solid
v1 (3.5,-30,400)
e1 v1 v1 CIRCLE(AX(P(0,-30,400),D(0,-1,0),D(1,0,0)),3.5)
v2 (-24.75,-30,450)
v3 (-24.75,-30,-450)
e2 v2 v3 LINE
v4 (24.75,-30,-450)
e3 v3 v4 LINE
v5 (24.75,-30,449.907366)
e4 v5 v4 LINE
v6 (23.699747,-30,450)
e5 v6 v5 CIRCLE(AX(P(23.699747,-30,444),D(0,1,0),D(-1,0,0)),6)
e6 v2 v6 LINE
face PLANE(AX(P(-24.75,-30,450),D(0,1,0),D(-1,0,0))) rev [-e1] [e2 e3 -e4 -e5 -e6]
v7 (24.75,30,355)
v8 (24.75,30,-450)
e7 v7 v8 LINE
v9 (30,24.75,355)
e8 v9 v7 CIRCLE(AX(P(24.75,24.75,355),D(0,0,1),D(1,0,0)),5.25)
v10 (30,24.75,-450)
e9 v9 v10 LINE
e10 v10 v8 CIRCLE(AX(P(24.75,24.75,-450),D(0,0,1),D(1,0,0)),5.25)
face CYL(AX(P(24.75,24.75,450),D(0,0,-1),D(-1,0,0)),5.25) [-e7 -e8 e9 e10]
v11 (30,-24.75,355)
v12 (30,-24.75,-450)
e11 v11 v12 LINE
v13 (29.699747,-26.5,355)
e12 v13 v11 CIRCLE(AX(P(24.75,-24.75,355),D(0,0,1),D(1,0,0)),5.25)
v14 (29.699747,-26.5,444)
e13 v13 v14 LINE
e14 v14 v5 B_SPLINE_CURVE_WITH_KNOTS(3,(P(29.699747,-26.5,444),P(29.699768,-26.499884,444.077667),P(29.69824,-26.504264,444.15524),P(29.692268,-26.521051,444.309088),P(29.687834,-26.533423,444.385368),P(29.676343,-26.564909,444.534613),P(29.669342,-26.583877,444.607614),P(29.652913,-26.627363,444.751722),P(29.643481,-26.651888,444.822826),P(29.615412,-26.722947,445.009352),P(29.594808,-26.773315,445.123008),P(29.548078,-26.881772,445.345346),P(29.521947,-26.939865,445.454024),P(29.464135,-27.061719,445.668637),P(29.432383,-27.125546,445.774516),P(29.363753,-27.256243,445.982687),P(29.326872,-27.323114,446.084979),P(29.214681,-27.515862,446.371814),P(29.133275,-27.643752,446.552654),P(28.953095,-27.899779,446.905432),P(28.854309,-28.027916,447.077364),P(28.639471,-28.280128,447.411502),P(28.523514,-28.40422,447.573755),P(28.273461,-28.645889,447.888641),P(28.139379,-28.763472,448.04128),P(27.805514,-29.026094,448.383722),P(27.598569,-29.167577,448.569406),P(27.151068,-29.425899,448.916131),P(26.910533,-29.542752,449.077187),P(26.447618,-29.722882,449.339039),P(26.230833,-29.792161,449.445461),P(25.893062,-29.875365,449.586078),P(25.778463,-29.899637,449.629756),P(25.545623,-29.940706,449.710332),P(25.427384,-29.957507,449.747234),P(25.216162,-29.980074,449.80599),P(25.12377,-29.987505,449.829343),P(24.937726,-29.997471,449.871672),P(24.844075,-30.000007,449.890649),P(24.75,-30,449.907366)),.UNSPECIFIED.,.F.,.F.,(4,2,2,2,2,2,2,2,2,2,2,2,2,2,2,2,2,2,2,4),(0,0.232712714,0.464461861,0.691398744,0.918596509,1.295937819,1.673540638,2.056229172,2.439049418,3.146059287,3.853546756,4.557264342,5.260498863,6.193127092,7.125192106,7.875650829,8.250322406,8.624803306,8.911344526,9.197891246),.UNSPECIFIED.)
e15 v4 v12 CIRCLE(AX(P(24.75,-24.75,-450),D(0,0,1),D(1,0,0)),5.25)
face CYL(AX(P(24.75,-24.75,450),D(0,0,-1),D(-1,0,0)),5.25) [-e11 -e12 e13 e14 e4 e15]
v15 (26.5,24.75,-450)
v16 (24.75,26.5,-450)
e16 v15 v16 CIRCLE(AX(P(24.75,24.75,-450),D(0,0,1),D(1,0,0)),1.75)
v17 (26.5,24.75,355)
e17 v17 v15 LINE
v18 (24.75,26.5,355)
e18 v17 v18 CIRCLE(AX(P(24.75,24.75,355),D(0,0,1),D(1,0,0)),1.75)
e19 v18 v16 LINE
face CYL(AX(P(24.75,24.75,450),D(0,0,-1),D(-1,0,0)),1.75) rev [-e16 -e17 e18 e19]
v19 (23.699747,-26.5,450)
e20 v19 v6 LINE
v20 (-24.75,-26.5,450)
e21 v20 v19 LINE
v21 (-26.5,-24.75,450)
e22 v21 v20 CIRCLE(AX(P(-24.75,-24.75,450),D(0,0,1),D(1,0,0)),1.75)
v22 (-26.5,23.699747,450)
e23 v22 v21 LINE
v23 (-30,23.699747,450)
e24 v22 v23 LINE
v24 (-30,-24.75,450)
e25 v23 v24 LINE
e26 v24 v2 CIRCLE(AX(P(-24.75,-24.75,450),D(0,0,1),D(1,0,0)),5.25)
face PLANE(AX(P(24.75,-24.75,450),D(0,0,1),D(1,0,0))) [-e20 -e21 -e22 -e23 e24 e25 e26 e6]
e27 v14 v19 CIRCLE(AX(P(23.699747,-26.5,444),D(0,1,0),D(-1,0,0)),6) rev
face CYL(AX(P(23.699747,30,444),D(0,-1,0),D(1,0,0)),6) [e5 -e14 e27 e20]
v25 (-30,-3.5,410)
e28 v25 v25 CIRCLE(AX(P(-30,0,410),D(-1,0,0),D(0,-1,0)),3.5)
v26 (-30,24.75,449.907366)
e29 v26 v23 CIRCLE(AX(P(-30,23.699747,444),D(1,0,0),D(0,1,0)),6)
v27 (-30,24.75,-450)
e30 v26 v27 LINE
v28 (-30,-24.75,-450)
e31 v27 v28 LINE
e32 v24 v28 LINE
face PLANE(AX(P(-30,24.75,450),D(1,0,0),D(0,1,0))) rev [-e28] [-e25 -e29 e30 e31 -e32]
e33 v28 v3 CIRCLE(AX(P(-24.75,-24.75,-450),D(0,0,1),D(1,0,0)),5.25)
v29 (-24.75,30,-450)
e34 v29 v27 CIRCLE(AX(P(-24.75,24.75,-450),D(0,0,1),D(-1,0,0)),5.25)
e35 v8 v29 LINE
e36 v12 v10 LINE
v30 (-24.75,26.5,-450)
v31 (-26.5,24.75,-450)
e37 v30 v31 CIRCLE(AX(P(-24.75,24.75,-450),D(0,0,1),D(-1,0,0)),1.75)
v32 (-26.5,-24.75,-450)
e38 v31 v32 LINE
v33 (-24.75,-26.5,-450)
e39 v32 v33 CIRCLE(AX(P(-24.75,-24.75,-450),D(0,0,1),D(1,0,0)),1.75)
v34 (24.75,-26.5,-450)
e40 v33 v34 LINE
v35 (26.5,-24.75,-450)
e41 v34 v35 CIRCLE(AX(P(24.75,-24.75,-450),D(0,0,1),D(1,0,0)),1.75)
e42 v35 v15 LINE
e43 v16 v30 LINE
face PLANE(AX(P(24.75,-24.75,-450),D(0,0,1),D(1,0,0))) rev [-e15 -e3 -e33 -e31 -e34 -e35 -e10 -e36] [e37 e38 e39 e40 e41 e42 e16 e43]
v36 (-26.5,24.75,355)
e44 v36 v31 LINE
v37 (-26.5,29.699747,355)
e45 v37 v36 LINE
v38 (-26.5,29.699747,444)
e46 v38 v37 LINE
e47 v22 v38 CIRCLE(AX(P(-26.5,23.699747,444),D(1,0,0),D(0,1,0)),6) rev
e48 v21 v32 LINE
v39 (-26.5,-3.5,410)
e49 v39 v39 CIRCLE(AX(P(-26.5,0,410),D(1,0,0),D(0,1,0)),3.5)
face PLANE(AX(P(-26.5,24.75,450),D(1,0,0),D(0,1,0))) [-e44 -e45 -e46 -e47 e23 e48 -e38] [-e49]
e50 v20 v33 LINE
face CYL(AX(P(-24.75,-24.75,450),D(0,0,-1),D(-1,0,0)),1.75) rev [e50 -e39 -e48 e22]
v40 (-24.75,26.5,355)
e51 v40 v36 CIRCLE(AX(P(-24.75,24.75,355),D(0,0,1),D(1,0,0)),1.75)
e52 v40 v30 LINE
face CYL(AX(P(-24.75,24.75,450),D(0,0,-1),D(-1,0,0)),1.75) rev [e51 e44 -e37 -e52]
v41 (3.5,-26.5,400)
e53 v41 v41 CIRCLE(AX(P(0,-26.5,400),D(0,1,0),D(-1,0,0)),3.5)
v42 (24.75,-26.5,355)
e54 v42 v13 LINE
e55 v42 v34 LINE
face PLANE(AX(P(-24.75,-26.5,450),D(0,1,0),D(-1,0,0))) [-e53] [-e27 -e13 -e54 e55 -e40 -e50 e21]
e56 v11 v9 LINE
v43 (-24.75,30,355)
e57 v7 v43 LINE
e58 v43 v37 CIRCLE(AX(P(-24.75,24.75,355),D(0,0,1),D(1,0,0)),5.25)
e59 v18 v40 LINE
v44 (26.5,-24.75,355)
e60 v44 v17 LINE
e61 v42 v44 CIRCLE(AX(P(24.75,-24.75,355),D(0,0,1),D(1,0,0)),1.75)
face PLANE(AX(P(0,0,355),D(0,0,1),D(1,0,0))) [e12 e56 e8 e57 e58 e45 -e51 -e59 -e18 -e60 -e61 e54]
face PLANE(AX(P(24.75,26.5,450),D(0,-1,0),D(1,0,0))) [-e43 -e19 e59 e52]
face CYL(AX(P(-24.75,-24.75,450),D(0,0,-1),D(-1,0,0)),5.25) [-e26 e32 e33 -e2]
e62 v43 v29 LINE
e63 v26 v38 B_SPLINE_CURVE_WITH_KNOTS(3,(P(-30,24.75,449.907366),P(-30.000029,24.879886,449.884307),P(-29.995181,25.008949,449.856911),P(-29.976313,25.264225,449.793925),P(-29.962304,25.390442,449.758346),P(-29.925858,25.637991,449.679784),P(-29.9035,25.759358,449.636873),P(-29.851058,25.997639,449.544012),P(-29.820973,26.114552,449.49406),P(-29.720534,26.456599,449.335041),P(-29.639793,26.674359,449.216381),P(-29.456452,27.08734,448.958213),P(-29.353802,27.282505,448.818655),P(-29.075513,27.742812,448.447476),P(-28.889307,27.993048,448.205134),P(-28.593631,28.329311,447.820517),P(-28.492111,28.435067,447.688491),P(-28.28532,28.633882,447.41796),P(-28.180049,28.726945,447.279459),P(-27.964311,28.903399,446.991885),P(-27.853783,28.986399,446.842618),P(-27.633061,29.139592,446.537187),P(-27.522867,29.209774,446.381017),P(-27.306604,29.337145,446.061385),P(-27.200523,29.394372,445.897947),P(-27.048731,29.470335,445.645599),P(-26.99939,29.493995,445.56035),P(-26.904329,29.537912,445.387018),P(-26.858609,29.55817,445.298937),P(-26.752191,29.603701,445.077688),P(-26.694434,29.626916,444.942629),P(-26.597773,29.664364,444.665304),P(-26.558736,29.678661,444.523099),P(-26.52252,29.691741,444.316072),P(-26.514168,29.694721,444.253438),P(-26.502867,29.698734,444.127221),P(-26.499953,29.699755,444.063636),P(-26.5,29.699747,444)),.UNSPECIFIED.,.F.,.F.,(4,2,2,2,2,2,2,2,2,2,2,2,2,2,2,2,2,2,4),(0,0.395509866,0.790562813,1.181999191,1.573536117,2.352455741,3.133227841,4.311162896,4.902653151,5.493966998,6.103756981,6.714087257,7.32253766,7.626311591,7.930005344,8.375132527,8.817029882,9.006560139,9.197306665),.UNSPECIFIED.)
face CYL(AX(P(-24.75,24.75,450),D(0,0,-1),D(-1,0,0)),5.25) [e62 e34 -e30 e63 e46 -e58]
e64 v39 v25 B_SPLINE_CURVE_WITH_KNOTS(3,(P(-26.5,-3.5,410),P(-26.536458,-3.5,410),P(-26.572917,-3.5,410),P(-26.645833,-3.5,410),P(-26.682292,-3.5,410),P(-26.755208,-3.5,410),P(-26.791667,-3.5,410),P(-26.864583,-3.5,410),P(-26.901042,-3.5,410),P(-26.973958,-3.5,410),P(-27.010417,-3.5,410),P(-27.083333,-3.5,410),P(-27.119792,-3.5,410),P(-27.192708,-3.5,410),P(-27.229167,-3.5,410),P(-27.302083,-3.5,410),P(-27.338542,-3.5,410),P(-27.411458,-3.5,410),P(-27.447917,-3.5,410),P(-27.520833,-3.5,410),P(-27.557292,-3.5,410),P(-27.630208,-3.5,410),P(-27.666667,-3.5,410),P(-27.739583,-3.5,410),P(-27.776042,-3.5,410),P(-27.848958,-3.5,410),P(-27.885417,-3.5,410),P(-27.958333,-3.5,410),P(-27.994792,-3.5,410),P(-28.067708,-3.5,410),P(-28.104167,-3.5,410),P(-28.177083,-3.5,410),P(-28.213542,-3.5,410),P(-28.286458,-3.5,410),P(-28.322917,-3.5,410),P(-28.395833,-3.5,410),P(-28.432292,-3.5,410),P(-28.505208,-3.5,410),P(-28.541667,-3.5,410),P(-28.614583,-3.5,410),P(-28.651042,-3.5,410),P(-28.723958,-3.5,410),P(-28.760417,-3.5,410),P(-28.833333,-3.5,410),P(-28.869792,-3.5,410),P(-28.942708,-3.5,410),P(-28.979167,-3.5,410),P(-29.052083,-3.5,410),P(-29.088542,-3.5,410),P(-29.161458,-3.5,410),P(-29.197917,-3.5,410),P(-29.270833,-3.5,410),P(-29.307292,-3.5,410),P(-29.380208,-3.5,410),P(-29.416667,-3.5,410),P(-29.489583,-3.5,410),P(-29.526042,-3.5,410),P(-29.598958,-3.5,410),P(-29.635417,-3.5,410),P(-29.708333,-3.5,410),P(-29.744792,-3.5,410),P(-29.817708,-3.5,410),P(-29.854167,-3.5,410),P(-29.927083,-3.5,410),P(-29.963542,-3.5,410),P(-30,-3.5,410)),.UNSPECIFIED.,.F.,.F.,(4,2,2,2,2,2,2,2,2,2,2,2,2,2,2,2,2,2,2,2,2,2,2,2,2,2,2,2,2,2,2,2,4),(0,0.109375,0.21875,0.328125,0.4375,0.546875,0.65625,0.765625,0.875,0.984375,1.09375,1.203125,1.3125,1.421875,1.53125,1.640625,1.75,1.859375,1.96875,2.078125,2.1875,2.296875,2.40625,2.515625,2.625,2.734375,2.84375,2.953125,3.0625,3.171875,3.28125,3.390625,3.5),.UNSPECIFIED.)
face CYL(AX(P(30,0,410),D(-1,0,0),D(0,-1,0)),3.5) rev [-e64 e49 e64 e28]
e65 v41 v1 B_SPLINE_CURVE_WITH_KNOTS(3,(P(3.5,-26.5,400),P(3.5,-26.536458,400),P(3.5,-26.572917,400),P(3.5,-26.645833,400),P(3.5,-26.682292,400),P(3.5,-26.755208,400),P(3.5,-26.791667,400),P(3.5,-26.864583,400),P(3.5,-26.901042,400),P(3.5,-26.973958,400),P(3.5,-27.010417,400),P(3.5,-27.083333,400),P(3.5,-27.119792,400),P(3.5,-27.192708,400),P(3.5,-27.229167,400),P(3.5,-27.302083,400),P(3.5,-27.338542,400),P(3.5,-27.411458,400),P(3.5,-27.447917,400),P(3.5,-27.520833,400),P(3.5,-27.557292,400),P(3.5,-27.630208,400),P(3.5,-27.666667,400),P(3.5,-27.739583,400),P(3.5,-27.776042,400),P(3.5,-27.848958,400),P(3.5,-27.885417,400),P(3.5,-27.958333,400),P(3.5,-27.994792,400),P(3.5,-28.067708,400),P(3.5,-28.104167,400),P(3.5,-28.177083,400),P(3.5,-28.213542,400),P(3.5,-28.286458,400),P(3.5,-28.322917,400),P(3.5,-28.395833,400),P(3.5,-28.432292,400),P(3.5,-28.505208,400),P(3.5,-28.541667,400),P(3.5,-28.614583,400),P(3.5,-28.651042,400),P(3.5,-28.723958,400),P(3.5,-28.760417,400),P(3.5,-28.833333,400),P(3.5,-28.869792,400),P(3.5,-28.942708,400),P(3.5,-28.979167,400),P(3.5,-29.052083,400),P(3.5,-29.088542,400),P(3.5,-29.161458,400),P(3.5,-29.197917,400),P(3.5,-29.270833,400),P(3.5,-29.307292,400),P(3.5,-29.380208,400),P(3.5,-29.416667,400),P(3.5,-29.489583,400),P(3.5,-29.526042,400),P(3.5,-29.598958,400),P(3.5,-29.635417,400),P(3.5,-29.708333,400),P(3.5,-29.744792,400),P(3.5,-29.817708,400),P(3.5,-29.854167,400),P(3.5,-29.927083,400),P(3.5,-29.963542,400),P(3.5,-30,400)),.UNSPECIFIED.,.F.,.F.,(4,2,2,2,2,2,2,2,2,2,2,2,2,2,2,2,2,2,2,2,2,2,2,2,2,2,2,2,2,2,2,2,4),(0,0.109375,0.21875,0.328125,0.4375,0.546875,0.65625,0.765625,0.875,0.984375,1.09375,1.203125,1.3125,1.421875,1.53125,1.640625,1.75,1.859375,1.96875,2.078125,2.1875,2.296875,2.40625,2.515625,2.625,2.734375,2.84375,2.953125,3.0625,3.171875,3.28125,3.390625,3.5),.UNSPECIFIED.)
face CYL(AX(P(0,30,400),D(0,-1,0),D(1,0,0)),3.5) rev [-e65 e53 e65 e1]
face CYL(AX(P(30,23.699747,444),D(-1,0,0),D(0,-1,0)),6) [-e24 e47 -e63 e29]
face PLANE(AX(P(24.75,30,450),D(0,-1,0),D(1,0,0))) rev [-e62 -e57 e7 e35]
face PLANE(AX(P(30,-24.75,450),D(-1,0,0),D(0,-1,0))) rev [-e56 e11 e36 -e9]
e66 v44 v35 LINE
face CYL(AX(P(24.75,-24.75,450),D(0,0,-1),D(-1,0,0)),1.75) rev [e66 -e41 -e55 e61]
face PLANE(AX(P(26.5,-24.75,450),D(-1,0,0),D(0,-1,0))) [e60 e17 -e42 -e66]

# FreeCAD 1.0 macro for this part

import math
import FreeCAD as App
import Part
import Sketcher
from FreeCAD import Vector

doc = App.newDocument("Part")
body = doc.addObject("PartDesign::Body", "Body")

sketch1 = doc.addObject("Sketcher::SketchObject", "Sketch")
body.addObject(sketch1)
sketch1.AttachmentSupport = (doc.XY_Plane, [""])
sketch1.MapMode = "FlatFace"
sketch1.addGeometry(Part.LineSegment(Vector(-30, 24.8, 0), Vector(-30, -24.8, 0)), False)
sketch1.addGeometry(Part.ArcOfCircle(Part.Circle(Vector(-24.7, -24.7, 0), Vector(0, 0, 1), 5.3), math.radians(-180), math.radians(-90)), False)
sketch1.addGeometry(Part.LineSegment(Vector(-24.8, -30, 0), Vector(24.8, -30, 0)), False)
sketch1.addGeometry(Part.ArcOfCircle(Part.Circle(Vector(24.7, -24.7, 0), Vector(0, 0, 1), 5.3), math.radians(-90), math.radians(0)), False)
sketch1.addGeometry(Part.LineSegment(Vector(30, -24.8, 0), Vector(30, 24.8, 0)), False)
sketch1.addGeometry(Part.ArcOfCircle(Part.Circle(Vector(24.7, 24.7, 0), Vector(0, 0, 1), 5.3), math.radians(0), math.radians(90)), False)
sketch1.addGeometry(Part.LineSegment(Vector(24.8, 30, 0), Vector(-24.8, 30, 0)), False)
sketch1.addGeometry(Part.ArcOfCircle(Part.Circle(Vector(-24.7, 24.7, 0), Vector(0, 0, 1), 5.3), math.radians(90), math.radians(180)), False)
sketch1.addGeometry(Part.LineSegment(Vector(26.5, 24.8, 0), Vector(26.5, -24.8, 0)), False)
sketch1.addGeometry(Part.ArcOfCircle(Part.Circle(Vector(24.8, -24.8, 0), Vector(0, 0, 1), 1.8), math.radians(-90), math.radians(0)), False)
sketch1.addGeometry(Part.LineSegment(Vector(24.8, -26.5, 0), Vector(-24.8, -26.5, 0)), False)
sketch1.addGeometry(Part.ArcOfCircle(Part.Circle(Vector(-24.8, -24.8, 0), Vector(0, 0, 1), 1.8), math.radians(180), math.radians(270)), False)
sketch1.addGeometry(Part.LineSegment(Vector(-26.5, -24.8, 0), Vector(-26.5, 24.8, 0)), False)
sketch1.addGeometry(Part.ArcOfCircle(Part.Circle(Vector(-24.8, 24.8, 0), Vector(0, 0, 1), 1.8), math.radians(90), math.radians(180)), False)
sketch1.addGeometry(Part.LineSegment(Vector(-24.8, 26.5, 0), Vector(24.8, 26.5, 0)), False)
sketch1.addGeometry(Part.ArcOfCircle(Part.Circle(Vector(24.8, 24.8, 0), Vector(0, 0, 1), 1.8), math.radians(0), math.radians(90)), False)
sketch1.addConstraint(Sketcher.Constraint("Tangent", 0, 2, 1, 1))
sketch1.addConstraint(Sketcher.Constraint("Tangent", 1, 2, 2, 1))
sketch1.addConstraint(Sketcher.Constraint("Tangent", 2, 2, 3, 1))
sketch1.addConstraint(Sketcher.Constraint("Tangent", 3, 2, 4, 1))
sketch1.addConstraint(Sketcher.Constraint("Tangent", 4, 2, 5, 1))
sketch1.addConstraint(Sketcher.Constraint("Tangent", 5, 2, 6, 1))
sketch1.addConstraint(Sketcher.Constraint("Tangent", 6, 2, 7, 1))
sketch1.addConstraint(Sketcher.Constraint("Tangent", 7, 2, 0, 1))
sketch1.addConstraint(Sketcher.Constraint("Tangent", 8, 2, 9, 2))
sketch1.addConstraint(Sketcher.Constraint("Tangent", 9, 1, 10, 1))
sketch1.addConstraint(Sketcher.Constraint("Tangent", 10, 2, 11, 2))
sketch1.addConstraint(Sketcher.Constraint("Tangent", 11, 1, 12, 1))
sketch1.addConstraint(Sketcher.Constraint("Tangent", 12, 2, 13, 2))
sketch1.addConstraint(Sketcher.Constraint("Tangent", 13, 1, 14, 1))
sketch1.addConstraint(Sketcher.Constraint("Tangent", 14, 2, 15, 2))
sketch1.addConstraint(Sketcher.Constraint("Tangent", 15, 1, 8, 1))
sketch1.addConstraint(Sketcher.Constraint("Vertical", 0))
sketch1.addConstraint(Sketcher.Constraint("Horizontal", 2))
sketch1.addConstraint(Sketcher.Constraint("Vertical", 4))
sketch1.addConstraint(Sketcher.Constraint("Horizontal", 6))
sketch1.addConstraint(Sketcher.Constraint("Vertical", 8))
sketch1.addConstraint(Sketcher.Constraint("Horizontal", 10))
sketch1.addConstraint(Sketcher.Constraint("Vertical", 12))
sketch1.addConstraint(Sketcher.Constraint("Horizontal", 14))
sketch1.addConstraint(Sketcher.Constraint("Coincident", 9, 3, 3, 3))
sketch1.addConstraint(Sketcher.Constraint("Coincident", 11, 3, 1, 3))
sketch1.addConstraint(Sketcher.Constraint("Coincident", 13, 3, 7, 3))
sketch1.addConstraint(Sketcher.Constraint("Equal", 1, 3))
sketch1.addConstraint(Sketcher.Constraint("Equal", 3, 5))
sketch1.addConstraint(Sketcher.Constraint("Equal", 5, 7))
sketch1.addConstraint(Sketcher.Constraint("Equal", 13, 15))
sketch1.addConstraint(Sketcher.Constraint("Symmetric", 1, 3, 5, 3, -1, 1))
sketch1.addConstraint(Sketcher.Constraint("Equal", 14, 0))
sketch1.addConstraint(Sketcher.Constraint("Radius", 1, 5.25))
sketch1.addConstraint(Sketcher.Constraint("Radius", 9, 1.75))
sketch1.addConstraint(Sketcher.Constraint("DistanceX", 2, 1, 2, 2, 49.5))
pad1 = doc.addObject("PartDesign::Pad", "Pad")
body.addObject(pad1)
pad1.Profile = sketch1
pad1.Length = 900
pad1.Midplane = True

sketch2 = doc.addObject("Sketcher::SketchObject", "Sketch001")
body.addObject(sketch2)
sketch2.AttachmentSupport = (doc.XY_Plane, [""])
sketch2.MapMode = "FlatFace"
sketch2.AttachmentOffset = App.Placement(Vector(0, 0, 450), App.Rotation())
sketch2.addGeometry(Part.LineSegment(Vector(30, 30, 0), Vector(-26.5, 30, 0)), False)
sketch2.addGeometry(Part.LineSegment(Vector(-26.5, 30, 0), Vector(-26.5, -24.8, 0)), False)
sketch2.addGeometry(Part.LineSegment(Vector(-26.5, -24.8, 0), Vector(-24.8, -26.5, 0)), False)
sketch2.addGeometry(Part.LineSegment(Vector(-24.8, -26.5, 0), Vector(30, -26.5, 0)), False)
sketch2.addGeometry(Part.LineSegment(Vector(30, -26.5, 0), Vector(30, 30, 0)), False)
sketch2.addConstraint(Sketcher.Constraint("Coincident", 0, 2, 1, 1))
sketch2.addConstraint(Sketcher.Constraint("Coincident", 1, 2, 2, 1))
sketch2.addConstraint(Sketcher.Constraint("Coincident", 2, 2, 3, 1))
sketch2.addConstraint(Sketcher.Constraint("Coincident", 3, 2, 4, 1))
sketch2.addConstraint(Sketcher.Constraint("Coincident", 4, 2, 0, 1))
sketch2.addConstraint(Sketcher.Constraint("Horizontal", 0))
sketch2.addConstraint(Sketcher.Constraint("Vertical", 1))
sketch2.addConstraint(Sketcher.Constraint("Horizontal", 3))
sketch2.addConstraint(Sketcher.Constraint("Vertical", 4))
sketch2.addConstraint(Sketcher.Constraint("Equal", 3, 1))
sketch2.addConstraint(Sketcher.Constraint("Equal", 0, 4))
sketch2.addConstraint(Sketcher.Constraint("DistanceX", 0, 2, 0, 1, 56.5))
sketch2.addConstraint(Sketcher.Constraint("DistanceY", -1, 1, 0, 2, 30.0))
sketch2.addConstraint(Sketcher.Constraint("DistanceX", -1, 1, 3, 2, 30.0))
sketch2.addConstraint(Sketcher.Constraint("DistanceX", 3, 1, 3, 2, 54.75))
pocket1 = doc.addObject("PartDesign::Pocket", "Pocket")
body.addObject(pocket1)
pocket1.Profile = sketch2
pocket1.Length = 95

sketch3 = doc.addObject("Sketcher::SketchObject", "Sketch002")
body.addObject(sketch3)
sketch3.AttachmentSupport = (doc.XZ_Plane, [""])
sketch3.MapMode = "FlatFace"
sketch3.AttachmentOffset = App.Placement(Vector(0, 0, 30), App.Rotation())
sketch3.addGeometry(Part.Circle(Vector(0, 400, 0), Vector(0, 0, 1), 3.5), False)
sketch3.addGeometry(Part.LineSegment(Vector(29.7, 450, 0), Vector(23.7, 450, 0)), False)
sketch3.addGeometry(Part.ArcOfCircle(Part.Circle(Vector(23.7, 444, 0), Vector(0, 0, 1), 6), math.radians(0), math.radians(90)), False)
sketch3.addGeometry(Part.LineSegment(Vector(29.7, 444, 0), Vector(29.7, 450, 0)), False)
sketch3.addConstraint(Sketcher.Constraint("Tangent", 1, 2, 2, 2))
sketch3.addConstraint(Sketcher.Constraint("Tangent", 2, 1, 3, 1))
sketch3.addConstraint(Sketcher.Constraint("Coincident", 3, 2, 1, 1))
sketch3.addConstraint(Sketcher.Constraint("Horizontal", 1))
sketch3.addConstraint(Sketcher.Constraint("Vertical", 3))
sketch3.addConstraint(Sketcher.Constraint("PointOnObject", 0, 3, -2))
sketch3.addConstraint(Sketcher.Constraint("Diameter", 0, 7.0))
sketch3.addConstraint(Sketcher.Constraint("Radius", 2, 6.0))
sketch3.addConstraint(Sketcher.Constraint("DistanceY", -1, 1, 0, 3, 400.0))
sketch3.addConstraint(Sketcher.Constraint("DistanceY", -1, 1, 2, 3, 444.0))
sketch3.addConstraint(Sketcher.Constraint("DistanceX", -1, 1, 2, 3, 23.699747))
pocket2 = doc.addObject("PartDesign::Pocket", "Pocket001")
body.addObject(pocket2)
pocket2.Profile = sketch3
pocket2.Type = "ThroughAll"

sketch4 = doc.addObject("Sketcher::SketchObject", "Sketch003")
body.addObject(sketch4)
sketch4.AttachmentSupport = (doc.YZ_Plane, [""])
sketch4.MapMode = "FlatFace"
sketch4.AttachmentOffset = App.Placement(Vector(0, 0, -30), App.Rotation())
sketch4.addGeometry(Part.Circle(Vector(0, 410, 0), Vector(0, 0, 1), 3.5), False)
sketch4.addGeometry(Part.LineSegment(Vector(29.7, 450, 0), Vector(29.7, 444, 0)), False)
sketch4.addGeometry(Part.ArcOfCircle(Part.Circle(Vector(23.7, 444, 0), Vector(0, 0, 1), 6), math.radians(0), math.radians(90)), False)
sketch4.addGeometry(Part.LineSegment(Vector(23.7, 450, 0), Vector(29.7, 450, 0)), False)
sketch4.addConstraint(Sketcher.Constraint("Tangent", 1, 2, 2, 1))
sketch4.addConstraint(Sketcher.Constraint("Tangent", 2, 2, 3, 1))
sketch4.addConstraint(Sketcher.Constraint("Coincident", 3, 2, 1, 1))
sketch4.addConstraint(Sketcher.Constraint("Vertical", 1))
sketch4.addConstraint(Sketcher.Constraint("Horizontal", 3))
sketch4.addConstraint(Sketcher.Constraint("PointOnObject", 0, 3, -2))
sketch4.addConstraint(Sketcher.Constraint("Diameter", 0, 7.0))
sketch4.addConstraint(Sketcher.Constraint("Radius", 2, 6.0))
sketch4.addConstraint(Sketcher.Constraint("DistanceY", -1, 1, 0, 3, 410.0))
sketch4.addConstraint(Sketcher.Constraint("DistanceY", -1, 1, 2, 3, 444.0))
sketch4.addConstraint(Sketcher.Constraint("DistanceX", -1, 1, 2, 3, 23.699747))
pocket3 = doc.addObject("PartDesign::Pocket", "Pocket002")
body.addObject(pocket3)
pocket3.Profile = sketch4
pocket3.Type = "ThroughAll"
pocket3.Reversed = True

doc.recompute()
